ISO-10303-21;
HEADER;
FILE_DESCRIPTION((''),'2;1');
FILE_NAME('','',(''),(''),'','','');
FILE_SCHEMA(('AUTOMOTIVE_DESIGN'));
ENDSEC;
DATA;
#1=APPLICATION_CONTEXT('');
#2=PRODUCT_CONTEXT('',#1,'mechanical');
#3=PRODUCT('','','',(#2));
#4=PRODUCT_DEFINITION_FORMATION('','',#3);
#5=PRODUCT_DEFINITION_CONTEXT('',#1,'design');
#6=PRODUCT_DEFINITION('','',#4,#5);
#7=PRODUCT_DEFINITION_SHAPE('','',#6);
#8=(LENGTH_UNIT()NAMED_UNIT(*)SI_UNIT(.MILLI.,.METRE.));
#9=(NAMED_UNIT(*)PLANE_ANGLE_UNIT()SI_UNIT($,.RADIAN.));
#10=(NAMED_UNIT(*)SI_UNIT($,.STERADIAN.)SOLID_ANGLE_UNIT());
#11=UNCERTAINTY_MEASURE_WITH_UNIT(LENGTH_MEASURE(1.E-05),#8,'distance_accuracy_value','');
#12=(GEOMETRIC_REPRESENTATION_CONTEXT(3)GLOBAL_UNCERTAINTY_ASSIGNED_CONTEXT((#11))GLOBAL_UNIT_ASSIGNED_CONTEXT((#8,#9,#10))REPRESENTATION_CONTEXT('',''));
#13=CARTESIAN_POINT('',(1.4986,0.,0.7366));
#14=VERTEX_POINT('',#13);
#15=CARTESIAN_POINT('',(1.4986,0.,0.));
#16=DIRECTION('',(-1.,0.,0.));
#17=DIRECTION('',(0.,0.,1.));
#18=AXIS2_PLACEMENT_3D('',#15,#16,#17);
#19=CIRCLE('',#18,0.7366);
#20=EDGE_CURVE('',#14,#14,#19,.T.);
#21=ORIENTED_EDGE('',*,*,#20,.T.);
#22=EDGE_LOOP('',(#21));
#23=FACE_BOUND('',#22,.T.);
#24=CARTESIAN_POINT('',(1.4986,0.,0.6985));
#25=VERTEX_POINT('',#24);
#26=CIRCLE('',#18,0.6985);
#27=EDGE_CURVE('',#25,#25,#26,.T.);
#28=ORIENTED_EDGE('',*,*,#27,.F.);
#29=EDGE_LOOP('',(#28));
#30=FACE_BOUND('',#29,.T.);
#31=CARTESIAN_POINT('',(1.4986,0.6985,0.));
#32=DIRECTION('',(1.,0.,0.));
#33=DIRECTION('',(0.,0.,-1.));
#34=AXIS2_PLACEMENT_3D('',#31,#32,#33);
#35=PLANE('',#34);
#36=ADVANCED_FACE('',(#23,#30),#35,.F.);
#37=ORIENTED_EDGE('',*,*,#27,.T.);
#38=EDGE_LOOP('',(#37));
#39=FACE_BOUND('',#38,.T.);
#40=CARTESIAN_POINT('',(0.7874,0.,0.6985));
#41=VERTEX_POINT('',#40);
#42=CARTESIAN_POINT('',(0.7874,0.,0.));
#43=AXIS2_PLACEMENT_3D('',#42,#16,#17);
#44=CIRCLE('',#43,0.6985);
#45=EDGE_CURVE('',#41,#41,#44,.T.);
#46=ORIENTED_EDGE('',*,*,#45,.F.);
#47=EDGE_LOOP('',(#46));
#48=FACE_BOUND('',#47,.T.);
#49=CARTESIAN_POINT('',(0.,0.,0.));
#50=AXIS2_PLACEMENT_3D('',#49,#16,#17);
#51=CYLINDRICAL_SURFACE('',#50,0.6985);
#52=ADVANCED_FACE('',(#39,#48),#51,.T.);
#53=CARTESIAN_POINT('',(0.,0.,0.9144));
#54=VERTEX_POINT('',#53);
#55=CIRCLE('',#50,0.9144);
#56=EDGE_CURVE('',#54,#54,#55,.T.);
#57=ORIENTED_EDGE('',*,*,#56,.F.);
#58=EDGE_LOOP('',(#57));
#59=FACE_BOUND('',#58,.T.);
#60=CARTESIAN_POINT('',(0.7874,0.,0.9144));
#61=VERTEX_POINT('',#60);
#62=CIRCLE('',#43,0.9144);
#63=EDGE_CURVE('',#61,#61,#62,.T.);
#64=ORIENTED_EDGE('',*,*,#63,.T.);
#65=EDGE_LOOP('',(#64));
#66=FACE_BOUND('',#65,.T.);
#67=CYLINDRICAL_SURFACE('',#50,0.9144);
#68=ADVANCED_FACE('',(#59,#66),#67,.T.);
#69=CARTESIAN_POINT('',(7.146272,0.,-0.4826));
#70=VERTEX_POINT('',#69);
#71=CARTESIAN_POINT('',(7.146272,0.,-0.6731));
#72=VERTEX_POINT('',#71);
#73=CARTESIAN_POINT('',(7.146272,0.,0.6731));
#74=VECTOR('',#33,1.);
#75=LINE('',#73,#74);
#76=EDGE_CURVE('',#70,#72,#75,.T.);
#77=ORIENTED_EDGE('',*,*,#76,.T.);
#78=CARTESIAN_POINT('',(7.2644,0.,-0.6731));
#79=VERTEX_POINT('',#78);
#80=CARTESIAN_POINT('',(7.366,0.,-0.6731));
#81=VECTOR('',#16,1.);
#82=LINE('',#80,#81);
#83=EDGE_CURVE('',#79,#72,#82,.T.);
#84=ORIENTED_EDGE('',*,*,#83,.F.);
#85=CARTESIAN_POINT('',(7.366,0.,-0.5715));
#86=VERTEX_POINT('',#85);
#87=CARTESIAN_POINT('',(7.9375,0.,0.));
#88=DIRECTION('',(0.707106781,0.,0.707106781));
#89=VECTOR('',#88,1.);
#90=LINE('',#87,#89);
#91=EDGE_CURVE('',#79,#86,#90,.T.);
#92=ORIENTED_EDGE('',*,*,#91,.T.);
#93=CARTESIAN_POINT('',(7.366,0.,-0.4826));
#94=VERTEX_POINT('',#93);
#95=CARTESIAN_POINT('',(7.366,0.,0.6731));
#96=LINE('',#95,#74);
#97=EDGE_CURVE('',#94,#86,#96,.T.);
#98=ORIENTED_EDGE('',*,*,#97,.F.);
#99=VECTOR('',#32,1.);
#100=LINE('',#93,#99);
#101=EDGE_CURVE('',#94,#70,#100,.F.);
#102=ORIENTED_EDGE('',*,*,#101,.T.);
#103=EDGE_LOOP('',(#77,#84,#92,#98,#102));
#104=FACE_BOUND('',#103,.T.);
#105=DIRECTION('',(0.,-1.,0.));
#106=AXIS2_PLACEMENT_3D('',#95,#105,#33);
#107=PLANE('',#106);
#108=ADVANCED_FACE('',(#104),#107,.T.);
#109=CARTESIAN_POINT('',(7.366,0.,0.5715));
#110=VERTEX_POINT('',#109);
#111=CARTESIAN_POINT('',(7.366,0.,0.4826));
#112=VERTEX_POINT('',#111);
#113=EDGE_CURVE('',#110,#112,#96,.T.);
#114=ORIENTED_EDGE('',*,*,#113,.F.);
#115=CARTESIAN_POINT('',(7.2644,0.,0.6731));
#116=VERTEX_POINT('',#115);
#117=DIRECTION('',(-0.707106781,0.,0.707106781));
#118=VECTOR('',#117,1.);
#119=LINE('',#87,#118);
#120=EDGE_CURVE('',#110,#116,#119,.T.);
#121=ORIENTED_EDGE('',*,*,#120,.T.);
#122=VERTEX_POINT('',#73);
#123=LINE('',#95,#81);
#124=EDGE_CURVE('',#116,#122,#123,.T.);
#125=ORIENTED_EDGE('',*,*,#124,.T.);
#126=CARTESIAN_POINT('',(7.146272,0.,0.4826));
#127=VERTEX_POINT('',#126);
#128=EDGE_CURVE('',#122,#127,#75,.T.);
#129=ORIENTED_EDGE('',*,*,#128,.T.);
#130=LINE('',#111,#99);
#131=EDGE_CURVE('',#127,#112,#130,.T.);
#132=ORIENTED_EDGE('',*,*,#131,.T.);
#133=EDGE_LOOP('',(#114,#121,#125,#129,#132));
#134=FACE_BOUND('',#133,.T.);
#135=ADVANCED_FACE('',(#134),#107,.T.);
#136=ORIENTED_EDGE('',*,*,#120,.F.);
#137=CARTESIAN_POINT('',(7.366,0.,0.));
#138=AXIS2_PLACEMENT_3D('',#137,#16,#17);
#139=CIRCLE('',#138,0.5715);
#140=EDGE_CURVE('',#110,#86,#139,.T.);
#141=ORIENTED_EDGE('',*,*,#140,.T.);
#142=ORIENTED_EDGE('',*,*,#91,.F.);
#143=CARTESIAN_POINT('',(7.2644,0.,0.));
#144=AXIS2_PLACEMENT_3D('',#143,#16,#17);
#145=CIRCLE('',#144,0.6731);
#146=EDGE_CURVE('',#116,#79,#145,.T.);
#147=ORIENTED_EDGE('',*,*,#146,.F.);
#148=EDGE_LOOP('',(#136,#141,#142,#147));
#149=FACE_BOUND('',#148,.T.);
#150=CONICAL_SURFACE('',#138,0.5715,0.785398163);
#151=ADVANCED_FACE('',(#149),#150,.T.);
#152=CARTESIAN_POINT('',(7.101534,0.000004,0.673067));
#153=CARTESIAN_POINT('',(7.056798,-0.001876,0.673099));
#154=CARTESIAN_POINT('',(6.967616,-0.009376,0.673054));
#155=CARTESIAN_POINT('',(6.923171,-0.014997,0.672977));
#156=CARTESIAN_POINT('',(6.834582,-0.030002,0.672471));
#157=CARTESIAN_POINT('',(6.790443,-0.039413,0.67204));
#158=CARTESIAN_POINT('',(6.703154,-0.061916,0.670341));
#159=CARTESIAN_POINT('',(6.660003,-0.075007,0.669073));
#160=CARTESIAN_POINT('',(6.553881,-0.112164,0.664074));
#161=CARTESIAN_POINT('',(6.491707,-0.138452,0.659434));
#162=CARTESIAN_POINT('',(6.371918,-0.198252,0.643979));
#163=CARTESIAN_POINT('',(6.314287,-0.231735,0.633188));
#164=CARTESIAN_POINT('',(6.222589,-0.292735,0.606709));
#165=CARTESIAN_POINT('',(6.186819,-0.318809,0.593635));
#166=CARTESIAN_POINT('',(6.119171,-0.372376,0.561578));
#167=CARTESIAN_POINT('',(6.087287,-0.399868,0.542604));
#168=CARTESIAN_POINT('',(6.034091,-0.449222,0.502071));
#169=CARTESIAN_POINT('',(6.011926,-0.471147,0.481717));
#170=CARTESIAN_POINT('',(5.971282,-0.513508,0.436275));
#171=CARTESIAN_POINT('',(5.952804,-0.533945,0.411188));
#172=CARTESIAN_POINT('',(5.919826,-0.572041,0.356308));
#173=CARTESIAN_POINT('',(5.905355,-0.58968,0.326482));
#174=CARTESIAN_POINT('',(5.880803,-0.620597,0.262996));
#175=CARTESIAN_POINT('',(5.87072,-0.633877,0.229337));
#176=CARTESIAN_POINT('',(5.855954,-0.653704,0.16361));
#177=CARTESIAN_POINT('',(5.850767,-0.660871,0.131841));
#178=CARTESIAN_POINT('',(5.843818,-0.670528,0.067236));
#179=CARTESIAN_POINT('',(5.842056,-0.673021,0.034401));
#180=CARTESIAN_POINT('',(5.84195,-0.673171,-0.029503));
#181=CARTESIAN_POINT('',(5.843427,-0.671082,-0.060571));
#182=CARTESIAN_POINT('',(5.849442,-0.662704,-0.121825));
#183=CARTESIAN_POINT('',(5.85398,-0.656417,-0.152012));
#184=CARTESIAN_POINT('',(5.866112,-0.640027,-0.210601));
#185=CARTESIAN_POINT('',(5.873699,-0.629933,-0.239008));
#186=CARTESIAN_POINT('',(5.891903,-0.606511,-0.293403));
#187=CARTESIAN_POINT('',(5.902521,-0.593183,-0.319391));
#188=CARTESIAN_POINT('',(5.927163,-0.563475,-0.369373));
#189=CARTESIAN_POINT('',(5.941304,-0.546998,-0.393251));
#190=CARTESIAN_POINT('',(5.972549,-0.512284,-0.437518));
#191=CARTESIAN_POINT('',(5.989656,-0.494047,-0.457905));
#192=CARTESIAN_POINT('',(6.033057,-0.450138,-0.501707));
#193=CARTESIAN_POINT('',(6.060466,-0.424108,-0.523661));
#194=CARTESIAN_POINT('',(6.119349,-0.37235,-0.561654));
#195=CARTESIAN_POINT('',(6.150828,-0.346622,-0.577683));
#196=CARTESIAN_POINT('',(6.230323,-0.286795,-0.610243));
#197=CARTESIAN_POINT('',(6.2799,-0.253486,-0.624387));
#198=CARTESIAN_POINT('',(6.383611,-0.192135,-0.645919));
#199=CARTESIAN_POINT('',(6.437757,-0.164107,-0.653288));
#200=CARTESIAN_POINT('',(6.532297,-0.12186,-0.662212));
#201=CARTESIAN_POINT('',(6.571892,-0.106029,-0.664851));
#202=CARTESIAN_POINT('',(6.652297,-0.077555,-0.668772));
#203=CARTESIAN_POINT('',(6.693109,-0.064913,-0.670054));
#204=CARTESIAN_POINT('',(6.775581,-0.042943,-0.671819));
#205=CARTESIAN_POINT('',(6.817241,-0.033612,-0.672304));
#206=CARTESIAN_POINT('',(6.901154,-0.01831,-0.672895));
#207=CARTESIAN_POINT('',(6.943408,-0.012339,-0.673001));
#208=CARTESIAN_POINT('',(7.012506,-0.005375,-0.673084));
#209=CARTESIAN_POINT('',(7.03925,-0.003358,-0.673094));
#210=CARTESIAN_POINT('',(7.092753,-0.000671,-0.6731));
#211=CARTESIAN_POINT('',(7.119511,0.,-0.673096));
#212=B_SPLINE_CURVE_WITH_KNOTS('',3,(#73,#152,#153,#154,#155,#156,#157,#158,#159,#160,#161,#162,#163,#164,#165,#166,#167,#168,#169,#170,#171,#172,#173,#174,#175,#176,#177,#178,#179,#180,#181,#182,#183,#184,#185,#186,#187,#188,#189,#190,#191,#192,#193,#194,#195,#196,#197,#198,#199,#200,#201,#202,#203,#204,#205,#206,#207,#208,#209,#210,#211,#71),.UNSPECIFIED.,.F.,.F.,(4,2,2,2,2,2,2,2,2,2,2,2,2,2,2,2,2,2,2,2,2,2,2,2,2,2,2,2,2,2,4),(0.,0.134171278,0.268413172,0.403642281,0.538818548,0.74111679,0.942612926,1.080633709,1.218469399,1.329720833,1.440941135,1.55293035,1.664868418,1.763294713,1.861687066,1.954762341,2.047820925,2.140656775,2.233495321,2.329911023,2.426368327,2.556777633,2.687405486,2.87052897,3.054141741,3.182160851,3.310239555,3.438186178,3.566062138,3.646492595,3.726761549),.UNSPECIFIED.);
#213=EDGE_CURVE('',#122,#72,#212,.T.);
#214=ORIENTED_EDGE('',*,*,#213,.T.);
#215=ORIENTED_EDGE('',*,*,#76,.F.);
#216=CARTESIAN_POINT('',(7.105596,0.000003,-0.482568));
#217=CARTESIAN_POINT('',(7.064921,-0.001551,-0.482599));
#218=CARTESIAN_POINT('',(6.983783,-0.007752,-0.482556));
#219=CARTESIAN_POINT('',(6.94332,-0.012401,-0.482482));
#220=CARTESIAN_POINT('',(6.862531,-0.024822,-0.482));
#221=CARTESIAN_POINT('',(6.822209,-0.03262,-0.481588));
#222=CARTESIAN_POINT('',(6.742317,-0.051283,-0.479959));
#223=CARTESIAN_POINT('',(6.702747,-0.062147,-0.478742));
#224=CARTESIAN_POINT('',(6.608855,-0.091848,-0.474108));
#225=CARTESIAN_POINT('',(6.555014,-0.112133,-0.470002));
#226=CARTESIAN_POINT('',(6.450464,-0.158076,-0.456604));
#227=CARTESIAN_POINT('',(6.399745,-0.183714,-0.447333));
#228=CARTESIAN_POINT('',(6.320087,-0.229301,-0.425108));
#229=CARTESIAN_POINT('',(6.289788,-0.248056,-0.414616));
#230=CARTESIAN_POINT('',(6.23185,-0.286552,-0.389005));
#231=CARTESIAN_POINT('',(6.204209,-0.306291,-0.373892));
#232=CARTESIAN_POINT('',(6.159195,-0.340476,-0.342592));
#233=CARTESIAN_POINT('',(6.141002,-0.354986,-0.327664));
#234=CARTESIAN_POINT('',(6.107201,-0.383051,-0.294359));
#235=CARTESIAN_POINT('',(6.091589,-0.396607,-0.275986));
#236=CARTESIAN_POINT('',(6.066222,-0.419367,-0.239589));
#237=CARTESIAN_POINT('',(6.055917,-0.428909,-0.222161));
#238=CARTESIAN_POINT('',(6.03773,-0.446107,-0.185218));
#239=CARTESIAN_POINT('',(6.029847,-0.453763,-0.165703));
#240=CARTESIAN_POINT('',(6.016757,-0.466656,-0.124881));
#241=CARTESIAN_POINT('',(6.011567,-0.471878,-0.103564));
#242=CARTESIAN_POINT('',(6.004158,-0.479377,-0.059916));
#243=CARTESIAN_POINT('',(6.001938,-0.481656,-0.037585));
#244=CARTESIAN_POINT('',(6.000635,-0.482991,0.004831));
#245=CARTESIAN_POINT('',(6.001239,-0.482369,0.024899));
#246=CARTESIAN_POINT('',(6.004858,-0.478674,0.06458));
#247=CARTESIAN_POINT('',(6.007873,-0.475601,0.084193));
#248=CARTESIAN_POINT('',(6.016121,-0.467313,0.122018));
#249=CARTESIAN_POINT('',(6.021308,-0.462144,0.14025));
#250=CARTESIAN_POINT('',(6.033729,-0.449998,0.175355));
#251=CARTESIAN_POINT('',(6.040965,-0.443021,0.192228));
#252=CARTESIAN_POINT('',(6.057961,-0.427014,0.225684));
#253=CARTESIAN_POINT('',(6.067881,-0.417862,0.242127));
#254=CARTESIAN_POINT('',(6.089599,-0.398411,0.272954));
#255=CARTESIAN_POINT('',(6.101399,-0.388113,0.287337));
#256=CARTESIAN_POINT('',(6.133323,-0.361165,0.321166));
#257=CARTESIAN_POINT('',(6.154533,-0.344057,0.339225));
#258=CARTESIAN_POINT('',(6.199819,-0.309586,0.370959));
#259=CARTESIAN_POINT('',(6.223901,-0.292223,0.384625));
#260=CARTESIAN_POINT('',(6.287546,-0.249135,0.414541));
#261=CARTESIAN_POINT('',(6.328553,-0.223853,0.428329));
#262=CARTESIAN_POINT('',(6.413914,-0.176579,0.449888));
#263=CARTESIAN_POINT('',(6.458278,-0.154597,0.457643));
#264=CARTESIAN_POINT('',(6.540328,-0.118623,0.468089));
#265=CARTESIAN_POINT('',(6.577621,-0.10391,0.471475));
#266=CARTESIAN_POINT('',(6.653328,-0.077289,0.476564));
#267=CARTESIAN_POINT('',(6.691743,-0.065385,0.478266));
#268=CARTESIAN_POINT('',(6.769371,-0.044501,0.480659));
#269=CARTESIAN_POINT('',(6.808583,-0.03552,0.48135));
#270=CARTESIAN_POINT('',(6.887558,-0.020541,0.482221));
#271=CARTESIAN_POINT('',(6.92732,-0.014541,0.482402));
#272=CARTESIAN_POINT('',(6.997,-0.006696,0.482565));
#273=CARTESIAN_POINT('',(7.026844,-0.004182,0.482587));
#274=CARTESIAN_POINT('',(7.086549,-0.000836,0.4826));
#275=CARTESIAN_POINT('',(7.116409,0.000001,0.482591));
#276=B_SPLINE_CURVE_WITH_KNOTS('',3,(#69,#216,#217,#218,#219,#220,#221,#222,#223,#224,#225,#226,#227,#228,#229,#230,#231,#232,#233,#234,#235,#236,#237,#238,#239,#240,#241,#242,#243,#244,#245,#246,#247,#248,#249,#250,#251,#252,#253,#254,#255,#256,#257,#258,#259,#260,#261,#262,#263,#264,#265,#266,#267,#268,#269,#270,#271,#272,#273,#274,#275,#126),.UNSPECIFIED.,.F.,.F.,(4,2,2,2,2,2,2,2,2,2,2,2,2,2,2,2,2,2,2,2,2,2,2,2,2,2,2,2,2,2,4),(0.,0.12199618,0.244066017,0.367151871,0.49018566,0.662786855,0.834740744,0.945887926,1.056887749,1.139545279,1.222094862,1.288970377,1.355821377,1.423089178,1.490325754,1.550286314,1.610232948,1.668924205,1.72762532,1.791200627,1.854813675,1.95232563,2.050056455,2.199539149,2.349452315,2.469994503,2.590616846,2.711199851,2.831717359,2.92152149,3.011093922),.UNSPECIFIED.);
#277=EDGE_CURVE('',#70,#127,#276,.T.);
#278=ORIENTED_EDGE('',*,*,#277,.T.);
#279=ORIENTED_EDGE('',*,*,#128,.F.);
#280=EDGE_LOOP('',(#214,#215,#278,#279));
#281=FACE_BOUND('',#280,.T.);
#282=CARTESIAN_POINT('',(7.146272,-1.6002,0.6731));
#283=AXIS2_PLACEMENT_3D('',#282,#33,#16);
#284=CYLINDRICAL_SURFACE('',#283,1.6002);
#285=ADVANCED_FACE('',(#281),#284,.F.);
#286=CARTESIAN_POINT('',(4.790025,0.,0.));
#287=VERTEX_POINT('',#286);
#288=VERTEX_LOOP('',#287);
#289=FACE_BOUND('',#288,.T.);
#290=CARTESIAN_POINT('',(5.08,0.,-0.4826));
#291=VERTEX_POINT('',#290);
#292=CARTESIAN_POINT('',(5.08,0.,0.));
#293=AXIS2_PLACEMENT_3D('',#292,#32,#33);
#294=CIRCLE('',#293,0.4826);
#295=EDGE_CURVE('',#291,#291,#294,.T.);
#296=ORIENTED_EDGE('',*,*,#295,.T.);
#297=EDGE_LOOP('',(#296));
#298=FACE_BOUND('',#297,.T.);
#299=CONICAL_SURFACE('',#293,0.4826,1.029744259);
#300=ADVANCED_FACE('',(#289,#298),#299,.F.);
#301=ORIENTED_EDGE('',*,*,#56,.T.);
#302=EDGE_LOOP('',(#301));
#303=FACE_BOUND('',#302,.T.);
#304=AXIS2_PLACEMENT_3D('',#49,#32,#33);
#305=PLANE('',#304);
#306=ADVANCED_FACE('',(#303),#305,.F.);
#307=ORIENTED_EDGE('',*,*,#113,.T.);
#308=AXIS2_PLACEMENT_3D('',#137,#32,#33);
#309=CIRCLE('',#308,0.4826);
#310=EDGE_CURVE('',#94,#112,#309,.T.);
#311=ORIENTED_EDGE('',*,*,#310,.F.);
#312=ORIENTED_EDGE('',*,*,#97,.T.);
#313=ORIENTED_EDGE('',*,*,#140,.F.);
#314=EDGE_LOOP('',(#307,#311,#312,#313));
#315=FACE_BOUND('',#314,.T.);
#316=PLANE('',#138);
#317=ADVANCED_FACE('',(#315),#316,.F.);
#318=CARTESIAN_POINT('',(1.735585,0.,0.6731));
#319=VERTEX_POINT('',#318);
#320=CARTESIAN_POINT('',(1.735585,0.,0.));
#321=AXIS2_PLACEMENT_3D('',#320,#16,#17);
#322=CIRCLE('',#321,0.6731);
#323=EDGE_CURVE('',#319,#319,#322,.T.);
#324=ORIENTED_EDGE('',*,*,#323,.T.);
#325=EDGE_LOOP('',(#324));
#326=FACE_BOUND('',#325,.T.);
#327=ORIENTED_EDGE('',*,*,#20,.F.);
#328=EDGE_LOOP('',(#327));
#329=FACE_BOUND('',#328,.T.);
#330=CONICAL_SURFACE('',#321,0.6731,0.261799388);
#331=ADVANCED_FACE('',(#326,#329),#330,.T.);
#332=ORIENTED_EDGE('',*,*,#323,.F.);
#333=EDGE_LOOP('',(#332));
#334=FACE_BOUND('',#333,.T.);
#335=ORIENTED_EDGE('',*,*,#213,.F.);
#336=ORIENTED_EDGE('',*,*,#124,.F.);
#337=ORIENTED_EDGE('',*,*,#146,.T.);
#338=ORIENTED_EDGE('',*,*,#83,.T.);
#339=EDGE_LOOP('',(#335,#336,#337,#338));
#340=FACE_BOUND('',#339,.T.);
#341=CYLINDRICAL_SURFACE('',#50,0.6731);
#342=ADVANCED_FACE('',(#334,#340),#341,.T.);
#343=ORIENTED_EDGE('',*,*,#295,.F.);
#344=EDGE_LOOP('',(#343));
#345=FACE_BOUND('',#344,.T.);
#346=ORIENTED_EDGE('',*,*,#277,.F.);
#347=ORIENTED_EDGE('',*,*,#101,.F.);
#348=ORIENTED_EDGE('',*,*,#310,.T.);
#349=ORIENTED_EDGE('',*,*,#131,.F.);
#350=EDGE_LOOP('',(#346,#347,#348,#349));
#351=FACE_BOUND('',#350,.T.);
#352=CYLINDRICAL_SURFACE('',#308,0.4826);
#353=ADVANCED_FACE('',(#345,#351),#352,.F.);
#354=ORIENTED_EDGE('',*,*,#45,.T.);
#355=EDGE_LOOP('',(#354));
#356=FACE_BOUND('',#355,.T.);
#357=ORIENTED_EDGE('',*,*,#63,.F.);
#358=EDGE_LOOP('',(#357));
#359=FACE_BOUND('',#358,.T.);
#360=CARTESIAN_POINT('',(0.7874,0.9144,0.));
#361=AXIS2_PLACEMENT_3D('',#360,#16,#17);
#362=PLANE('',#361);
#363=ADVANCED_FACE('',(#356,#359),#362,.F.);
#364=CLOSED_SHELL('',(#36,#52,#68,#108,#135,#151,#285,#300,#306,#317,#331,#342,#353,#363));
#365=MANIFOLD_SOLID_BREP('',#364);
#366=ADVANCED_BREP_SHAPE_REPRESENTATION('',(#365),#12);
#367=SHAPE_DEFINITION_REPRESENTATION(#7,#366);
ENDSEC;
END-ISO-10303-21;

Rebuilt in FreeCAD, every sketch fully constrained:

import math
import FreeCAD as App
import Part
import Sketcher

V = App.Vector
Q = App.Units.Quantity


def add_polygon(sketch, points):
    """Adds a closed chain of lines whose ends are joined by coincident constraints."""
    first, n = sketch.GeometryCount, len(points)
    for a, b in zip(points, points[1:] + points[:1]):
        sketch.addGeometry(Part.LineSegment(App.Vector(*a, 0), App.Vector(*b, 0)), False)
    for i in range(n):
        sketch.addConstraint(Sketcher.Constraint("Coincident", first + i, 2, first + (i + 1) % n, 1))

doc = App.newDocument("Part")
body = doc.addObject("PartDesign::Body", "Body")

# Sketch on XY plane
sketch1 = doc.addObject("Sketcher::SketchObject", "Sketch")
body.addObject(sketch1)
sketch1.AttachmentSupport = (doc.XY_Plane, [""])
sketch1.MapMode = "FlatFace"
add_polygon(sketch1, [(7.366, 0.572), (7.264, 0.673), (1.736, 0.673), (1.499, 0.737), (1.499, 0.699), (0.787, 0.699), (0.787, 0.914), (0, 0.914), (0, 0), (7.366, 0)])  # lines 0-9
sketch1.addConstraint(Sketcher.Constraint("Horizontal", 1))
sketch1.addConstraint(Sketcher.Constraint("Vertical", 3))
sketch1.addConstraint(Sketcher.Constraint("Horizontal", 4))
sketch1.addConstraint(Sketcher.Constraint("Vertical", 5))
sketch1.addConstraint(Sketcher.Constraint("Horizontal", 6))
sketch1.addConstraint(Sketcher.Constraint("Vertical", 7))
sketch1.addConstraint(Sketcher.Constraint("Horizontal", 8))
sketch1.addConstraint(Sketcher.Constraint("Vertical", 9))
sketch1.addConstraint(Sketcher.Constraint("Coincident", 7, 2, -1, 1))
sketch1.addConstraint(Sketcher.Constraint("Angle", 0, Q("135 deg")))
sketch1.addConstraint(Sketcher.Constraint("Angle", 2, Q("165 deg")))
sketch1.addConstraint(Sketcher.Constraint("DistanceX", 8, 1, 8, 2, Q("0.29 in")))
sketch1.addConstraint(Sketcher.Constraint("DistanceX", 4, 2, 4, 1, Q("0.028 in")))
sketch1.addConstraint(Sketcher.Constraint("DistanceX", 6, 2, 6, 1, Q("0.031 in")))
sketch1.addConstraint(Sketcher.Constraint("DistanceY", 7, 2, 7, 1, Q("0.036 in")))
sketch1.addConstraint(Sketcher.Constraint("DistanceY", 3, 2, 3, 1, Q("0.0015 in")))
sketch1.addConstraint(Sketcher.Constraint("DistanceY", 5, 1, 5, 2, Q("0.0085 in")))
sketch1.addConstraint(Sketcher.Constraint("DistanceY", 9, 1, 9, 2, Q("0.0225 in")))
sketch1.addConstraint(Sketcher.Constraint("DistanceX", -1, 1, 0, 2, Q("0.286 in")))
revolution = doc.addObject("PartDesign::Revolution", "Revolution")
body.addObject(revolution)
revolution.Profile = sketch1
revolution.ReferenceAxis = (sketch1, ["H_Axis"])
revolution.Angle = 360

# Sketch on YZ plane
sketch2 = doc.addObject("Sketcher::SketchObject", "Sketch001")
body.addObject(sketch2)
sketch2.AttachmentSupport = (doc.YZ_Plane, [""])
sketch2.MapMode = "FlatFace"
sketch2.AttachmentOffset = App.Placement(V(0, 0, 0.29 * 25.4), App.Rotation())
sketch2.addGeometry(Part.Circle(V(0, 0, 0), V(0, 0, 1), 0.48), False)
sketch2.addConstraint(Sketcher.Constraint("Coincident", 0, 3, -1, 1))
sketch2.addConstraint(Sketcher.Constraint("Diameter", 0, Q("0.038 in")))
doc.recompute()
hole = doc.addObject("PartDesign::Hole", "Hole")
body.addObject(hole)
hole.Profile = sketch2
hole.ThreadType = "None"
hole.Diameter = Q("0.038 in")
hole.DepthType = "Dimension"
hole.Depth = Q("0.09 in")
hole.DrillPoint = "Angled"
hole.DrillPointAngle = 118

# Sketch on XY plane
sketch3 = doc.addObject("Sketcher::SketchObject", "Sketch002")
body.addObject(sketch3)
sketch3.AttachmentSupport = (doc.XY_Plane, [""])
sketch3.MapMode = "FlatFace"
sketch3.addGeometry(Part.LineSegment(V(5.84, -0.67, 0), V(7.37, -0.67, 0)), False)
sketch3.addGeometry(Part.LineSegment(V(7.37, -0.67, 0), V(7.37, 0, 0)), False)
sketch3.addGeometry(Part.LineSegment(V(7.37, 0, 0), V(7.15, 0, 0)), False)
sketch3.addGeometry(Part.ArcOfCircle(Part.Circle(V(7.15, -1.6, 0), V(0, 0, 1), 1.6), math.radians(90), math.radians(145)), False)
sketch3.addConstraint(Sketcher.Constraint("Coincident", 0, 2, 1, 1))
sketch3.addConstraint(Sketcher.Constraint("Coincident", 1, 2, 2, 1))
sketch3.addConstraint(Sketcher.Constraint("Tangent", 2, 2, 3, 1))
sketch3.addConstraint(Sketcher.Constraint("Coincident", 3, 2, 0, 1))
sketch3.addConstraint(Sketcher.Constraint("Horizontal", 0))
sketch3.addConstraint(Sketcher.Constraint("Vertical", 1))
sketch3.addConstraint(Sketcher.Constraint("Horizontal", 2))
sketch3.addConstraint(Sketcher.Constraint("PointOnObject", 1, 2, -1))
sketch3.addConstraint(Sketcher.Constraint("Radius", 3, Q("0.063 in")))
sketch3.addConstraint(Sketcher.Constraint("DistanceX", 0, 1, 0, 2, Q("0.06 in")))
sketch3.addConstraint(Sketcher.Constraint("DistanceX", -1, 1, 0, 2, Q("0.29 in")))
sketch3.addConstraint(Sketcher.Constraint("DistanceY", 1, 1, 1, 2, Q("0.0265 in")))
pocket1 = doc.addObject("PartDesign::Pocket", "Pocket")
body.addObject(pocket1)
pocket1.Profile = sketch3
pocket1.Type = "ThroughAll"
pocket1.Midplane = True

doc.recompute()
